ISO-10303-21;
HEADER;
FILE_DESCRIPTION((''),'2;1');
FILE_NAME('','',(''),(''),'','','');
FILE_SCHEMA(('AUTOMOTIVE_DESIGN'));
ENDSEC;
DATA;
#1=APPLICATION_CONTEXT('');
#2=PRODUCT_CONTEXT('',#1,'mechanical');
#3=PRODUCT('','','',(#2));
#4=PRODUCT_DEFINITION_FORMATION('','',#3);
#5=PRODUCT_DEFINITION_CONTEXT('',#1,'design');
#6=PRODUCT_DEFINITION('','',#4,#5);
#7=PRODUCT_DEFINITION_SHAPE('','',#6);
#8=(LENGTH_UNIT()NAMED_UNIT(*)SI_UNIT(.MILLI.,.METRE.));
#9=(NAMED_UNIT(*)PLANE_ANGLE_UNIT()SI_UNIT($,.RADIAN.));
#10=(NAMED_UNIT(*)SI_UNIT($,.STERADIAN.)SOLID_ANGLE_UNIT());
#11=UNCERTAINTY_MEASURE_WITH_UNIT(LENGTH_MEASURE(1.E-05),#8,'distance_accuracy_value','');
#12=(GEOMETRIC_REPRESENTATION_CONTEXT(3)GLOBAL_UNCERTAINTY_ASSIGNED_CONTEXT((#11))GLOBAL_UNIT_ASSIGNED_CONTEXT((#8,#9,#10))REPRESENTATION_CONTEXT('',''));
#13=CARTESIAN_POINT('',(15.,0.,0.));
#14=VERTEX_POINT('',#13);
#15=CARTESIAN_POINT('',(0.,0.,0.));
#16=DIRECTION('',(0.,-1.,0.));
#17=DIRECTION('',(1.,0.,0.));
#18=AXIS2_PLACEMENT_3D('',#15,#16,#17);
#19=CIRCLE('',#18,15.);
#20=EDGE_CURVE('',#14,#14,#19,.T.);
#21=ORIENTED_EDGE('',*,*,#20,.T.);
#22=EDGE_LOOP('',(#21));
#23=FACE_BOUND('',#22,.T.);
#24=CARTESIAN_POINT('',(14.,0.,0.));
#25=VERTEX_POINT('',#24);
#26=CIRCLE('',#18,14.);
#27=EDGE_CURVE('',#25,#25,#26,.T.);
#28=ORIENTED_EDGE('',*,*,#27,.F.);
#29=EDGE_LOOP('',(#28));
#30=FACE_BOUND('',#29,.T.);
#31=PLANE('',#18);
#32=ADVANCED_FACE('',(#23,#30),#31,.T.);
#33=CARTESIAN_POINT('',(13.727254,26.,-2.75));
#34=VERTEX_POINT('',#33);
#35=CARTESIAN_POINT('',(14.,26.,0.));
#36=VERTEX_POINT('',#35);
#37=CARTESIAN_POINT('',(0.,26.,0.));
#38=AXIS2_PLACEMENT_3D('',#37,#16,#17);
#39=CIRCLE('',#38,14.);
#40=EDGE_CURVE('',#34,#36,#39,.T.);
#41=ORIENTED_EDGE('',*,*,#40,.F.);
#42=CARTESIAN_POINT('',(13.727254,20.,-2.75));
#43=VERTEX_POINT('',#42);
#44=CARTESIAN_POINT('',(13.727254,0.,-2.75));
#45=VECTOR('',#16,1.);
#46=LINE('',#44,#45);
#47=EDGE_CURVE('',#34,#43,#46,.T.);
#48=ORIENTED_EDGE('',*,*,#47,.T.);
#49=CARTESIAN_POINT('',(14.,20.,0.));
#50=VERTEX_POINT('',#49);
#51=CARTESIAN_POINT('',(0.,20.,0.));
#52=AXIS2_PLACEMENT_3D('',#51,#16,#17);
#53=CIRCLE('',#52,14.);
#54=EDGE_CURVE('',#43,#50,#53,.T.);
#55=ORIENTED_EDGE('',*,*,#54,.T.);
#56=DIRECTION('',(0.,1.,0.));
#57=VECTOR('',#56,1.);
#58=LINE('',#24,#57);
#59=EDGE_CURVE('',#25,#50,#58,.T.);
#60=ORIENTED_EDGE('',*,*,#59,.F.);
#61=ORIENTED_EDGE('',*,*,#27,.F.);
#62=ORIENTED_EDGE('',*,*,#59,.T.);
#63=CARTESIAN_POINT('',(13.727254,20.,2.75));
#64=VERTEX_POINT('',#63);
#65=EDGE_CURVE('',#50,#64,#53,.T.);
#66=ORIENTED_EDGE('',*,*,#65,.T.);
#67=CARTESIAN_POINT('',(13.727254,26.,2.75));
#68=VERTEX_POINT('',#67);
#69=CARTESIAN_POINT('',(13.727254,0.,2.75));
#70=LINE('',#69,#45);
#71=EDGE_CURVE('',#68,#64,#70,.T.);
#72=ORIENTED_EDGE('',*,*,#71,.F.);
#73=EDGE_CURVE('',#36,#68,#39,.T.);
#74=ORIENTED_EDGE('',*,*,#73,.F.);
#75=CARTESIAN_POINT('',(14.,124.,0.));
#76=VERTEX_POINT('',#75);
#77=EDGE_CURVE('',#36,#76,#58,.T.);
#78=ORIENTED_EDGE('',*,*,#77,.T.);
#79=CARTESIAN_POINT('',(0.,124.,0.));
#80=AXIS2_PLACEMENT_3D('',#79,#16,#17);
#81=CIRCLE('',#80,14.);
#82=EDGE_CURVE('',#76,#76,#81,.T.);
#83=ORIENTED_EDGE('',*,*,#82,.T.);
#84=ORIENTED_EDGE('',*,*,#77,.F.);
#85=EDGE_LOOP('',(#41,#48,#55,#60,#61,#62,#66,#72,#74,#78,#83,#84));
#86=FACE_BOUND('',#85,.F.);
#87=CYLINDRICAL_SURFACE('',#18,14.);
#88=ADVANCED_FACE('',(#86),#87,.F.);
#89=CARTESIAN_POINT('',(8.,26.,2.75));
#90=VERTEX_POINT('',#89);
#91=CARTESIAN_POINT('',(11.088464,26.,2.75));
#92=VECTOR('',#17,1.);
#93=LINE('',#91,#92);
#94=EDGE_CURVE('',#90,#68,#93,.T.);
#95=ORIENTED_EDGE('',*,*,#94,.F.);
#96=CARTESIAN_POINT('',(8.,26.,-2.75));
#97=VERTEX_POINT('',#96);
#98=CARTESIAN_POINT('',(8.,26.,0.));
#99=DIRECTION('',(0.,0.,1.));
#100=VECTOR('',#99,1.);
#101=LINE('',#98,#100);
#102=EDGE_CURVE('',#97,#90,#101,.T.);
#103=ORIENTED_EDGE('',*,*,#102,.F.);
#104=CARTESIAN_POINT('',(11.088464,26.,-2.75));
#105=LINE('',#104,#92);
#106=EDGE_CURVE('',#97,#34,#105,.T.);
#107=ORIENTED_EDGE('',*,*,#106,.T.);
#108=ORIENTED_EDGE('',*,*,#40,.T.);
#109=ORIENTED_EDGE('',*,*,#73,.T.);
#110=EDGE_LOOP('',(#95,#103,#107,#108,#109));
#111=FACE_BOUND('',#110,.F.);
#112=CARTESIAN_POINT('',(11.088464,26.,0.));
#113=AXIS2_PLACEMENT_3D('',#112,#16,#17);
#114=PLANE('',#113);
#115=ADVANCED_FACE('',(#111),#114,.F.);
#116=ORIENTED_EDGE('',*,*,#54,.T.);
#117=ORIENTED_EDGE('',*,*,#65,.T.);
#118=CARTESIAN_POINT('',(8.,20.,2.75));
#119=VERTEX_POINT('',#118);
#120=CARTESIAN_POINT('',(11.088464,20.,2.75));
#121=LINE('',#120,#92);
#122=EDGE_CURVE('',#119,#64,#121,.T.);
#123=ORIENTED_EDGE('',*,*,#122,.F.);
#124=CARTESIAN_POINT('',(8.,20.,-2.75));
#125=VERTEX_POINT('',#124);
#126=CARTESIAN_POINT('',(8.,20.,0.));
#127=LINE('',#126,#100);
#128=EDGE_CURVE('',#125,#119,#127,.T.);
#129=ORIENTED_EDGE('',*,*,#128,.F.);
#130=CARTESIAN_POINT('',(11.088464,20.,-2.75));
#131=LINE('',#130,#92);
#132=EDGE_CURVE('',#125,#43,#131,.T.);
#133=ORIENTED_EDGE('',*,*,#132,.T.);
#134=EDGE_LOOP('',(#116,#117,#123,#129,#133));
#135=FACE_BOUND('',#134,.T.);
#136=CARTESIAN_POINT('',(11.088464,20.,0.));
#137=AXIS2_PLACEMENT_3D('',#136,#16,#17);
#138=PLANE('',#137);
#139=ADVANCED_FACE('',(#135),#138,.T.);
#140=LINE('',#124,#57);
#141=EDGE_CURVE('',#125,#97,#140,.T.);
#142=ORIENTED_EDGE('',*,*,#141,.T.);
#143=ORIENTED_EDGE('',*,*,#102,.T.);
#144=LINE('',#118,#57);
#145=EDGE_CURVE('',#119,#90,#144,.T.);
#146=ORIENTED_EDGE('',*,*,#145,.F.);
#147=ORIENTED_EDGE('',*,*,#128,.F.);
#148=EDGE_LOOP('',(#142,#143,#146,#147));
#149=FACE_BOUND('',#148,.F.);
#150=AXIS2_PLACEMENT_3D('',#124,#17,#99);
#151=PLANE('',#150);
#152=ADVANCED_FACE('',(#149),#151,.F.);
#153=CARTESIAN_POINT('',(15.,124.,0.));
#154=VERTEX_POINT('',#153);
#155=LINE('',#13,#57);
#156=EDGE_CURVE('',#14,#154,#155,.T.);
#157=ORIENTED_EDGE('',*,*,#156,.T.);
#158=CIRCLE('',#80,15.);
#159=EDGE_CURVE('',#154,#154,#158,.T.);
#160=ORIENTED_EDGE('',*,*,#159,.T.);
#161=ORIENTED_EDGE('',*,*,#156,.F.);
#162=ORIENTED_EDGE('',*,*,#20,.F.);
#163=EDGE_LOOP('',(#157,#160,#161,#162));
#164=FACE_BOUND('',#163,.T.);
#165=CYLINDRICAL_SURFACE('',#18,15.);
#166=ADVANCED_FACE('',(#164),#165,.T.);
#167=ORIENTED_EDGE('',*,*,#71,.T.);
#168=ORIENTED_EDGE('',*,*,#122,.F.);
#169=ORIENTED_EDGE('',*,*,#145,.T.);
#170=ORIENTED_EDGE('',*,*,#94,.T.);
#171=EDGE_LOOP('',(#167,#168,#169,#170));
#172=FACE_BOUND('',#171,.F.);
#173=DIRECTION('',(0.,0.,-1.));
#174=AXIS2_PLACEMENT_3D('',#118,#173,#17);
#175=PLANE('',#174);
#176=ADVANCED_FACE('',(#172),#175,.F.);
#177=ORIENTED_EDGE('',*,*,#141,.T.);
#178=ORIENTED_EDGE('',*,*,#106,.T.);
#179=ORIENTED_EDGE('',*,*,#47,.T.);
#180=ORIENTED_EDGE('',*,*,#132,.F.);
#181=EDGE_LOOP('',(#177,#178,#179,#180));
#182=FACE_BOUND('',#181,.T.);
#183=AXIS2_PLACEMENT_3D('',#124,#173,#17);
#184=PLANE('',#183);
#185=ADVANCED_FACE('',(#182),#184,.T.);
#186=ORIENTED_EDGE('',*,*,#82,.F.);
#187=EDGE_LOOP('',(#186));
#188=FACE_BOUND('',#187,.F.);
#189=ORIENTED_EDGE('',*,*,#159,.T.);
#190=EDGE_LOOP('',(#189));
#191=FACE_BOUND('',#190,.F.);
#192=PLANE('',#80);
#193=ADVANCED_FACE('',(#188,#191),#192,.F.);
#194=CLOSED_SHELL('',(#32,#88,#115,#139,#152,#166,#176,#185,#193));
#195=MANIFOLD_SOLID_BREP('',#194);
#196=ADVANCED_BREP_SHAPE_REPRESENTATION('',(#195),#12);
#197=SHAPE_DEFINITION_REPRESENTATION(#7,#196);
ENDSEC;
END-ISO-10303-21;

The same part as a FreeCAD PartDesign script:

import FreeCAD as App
import Part
import Sketcher
from FreeCAD import Vector

doc = App.newDocument("Part")
body = doc.addObject("PartDesign::Body", "Body")

sketch1 = doc.addObject("Sketcher::SketchObject", "Sketch")
body.addObject(sketch1)
sketch1.AttachmentSupport = (doc.XZ_Plane, [""])
sketch1.MapMode = "FlatFace"
sketch1.addGeometry(Part.Circle(Vector(0, 0, 0), Vector(0, 0, 1), 15), False)
sketch1.addGeometry(Part.Circle(Vector(0, 0, 0), Vector(0, 0, 1), 14), False)
sketch1.addConstraint(Sketcher.Constraint("Coincident", 0, 3, -1, 1))
sketch1.addConstraint(Sketcher.Constraint("Coincident", 1, 3, -1, 1))
sketch1.addConstraint(Sketcher.Constraint("Diameter", 0, 30.0))
sketch1.addConstraint(Sketcher.Constraint("Diameter", 1, 28.0))
pad1 = doc.addObject("PartDesign::Pad", "Pad")
body.addObject(pad1)
pad1.Profile = sketch1
pad1.Length = 124
pad1.Reversed = True

sketch2 = doc.addObject("Sketcher::SketchObject", "Sketch001")
body.addObject(sketch2)
sketch2.AttachmentSupport = (doc.XZ_Plane, [""])
sketch2.MapMode = "FlatFace"
sketch2.AttachmentOffset = App.Placement(Vector(0, 0, -20), App.Rotation())
sketch2.addGeometry(Part.LineSegment(Vector(8, 3, 0), Vector(8, -3, 0)), False)
sketch2.addGeometry(Part.LineSegment(Vector(8, -3, 0), Vector(14, -3, 0)), False)
sketch2.addGeometry(Part.LineSegment(Vector(14, -3, 0), Vector(14, 3, 0)), False)
sketch2.addGeometry(Part.LineSegment(Vector(14, 3, 0), Vector(8, 3, 0)), False)
sketch2.addConstraint(Sketcher.Constraint("Coincident", 0, 2, 1, 1))
sketch2.addConstraint(Sketcher.Constraint("Coincident", 1, 2, 2, 1))
sketch2.addConstraint(Sketcher.Constraint("Coincident", 2, 2, 3, 1))
sketch2.addConstraint(Sketcher.Constraint("Coincident", 3, 2, 0, 1))
sketch2.addConstraint(Sketcher.Constraint("Vertical", 0))
sketch2.addConstraint(Sketcher.Constraint("Horizontal", 1))
sketch2.addConstraint(Sketcher.Constraint("Vertical", 2))
sketch2.addConstraint(Sketcher.Constraint("Horizontal", 3))
sketch2.addConstraint(Sketcher.Constraint("DistanceY", 0, 2, 0, 1, 5.5))
sketch2.addConstraint(Sketcher.Constraint("DistanceX", -1, 1, 0, 2, 8.0))
sketch2.addConstraint(Sketcher.Constraint("DistanceY", 0, 2, -1, 1, 2.75))
sketch2.addConstraint(Sketcher.Constraint("DistanceX", 1, 1, 1, 2, 6.176928))
pad2 = doc.addObject("PartDesign::Pad", "Pad001")
body.addObject(pad2)
pad2.Profile = sketch2
pad2.Length = 6
pad2.Reversed = True

doc.recompute()
